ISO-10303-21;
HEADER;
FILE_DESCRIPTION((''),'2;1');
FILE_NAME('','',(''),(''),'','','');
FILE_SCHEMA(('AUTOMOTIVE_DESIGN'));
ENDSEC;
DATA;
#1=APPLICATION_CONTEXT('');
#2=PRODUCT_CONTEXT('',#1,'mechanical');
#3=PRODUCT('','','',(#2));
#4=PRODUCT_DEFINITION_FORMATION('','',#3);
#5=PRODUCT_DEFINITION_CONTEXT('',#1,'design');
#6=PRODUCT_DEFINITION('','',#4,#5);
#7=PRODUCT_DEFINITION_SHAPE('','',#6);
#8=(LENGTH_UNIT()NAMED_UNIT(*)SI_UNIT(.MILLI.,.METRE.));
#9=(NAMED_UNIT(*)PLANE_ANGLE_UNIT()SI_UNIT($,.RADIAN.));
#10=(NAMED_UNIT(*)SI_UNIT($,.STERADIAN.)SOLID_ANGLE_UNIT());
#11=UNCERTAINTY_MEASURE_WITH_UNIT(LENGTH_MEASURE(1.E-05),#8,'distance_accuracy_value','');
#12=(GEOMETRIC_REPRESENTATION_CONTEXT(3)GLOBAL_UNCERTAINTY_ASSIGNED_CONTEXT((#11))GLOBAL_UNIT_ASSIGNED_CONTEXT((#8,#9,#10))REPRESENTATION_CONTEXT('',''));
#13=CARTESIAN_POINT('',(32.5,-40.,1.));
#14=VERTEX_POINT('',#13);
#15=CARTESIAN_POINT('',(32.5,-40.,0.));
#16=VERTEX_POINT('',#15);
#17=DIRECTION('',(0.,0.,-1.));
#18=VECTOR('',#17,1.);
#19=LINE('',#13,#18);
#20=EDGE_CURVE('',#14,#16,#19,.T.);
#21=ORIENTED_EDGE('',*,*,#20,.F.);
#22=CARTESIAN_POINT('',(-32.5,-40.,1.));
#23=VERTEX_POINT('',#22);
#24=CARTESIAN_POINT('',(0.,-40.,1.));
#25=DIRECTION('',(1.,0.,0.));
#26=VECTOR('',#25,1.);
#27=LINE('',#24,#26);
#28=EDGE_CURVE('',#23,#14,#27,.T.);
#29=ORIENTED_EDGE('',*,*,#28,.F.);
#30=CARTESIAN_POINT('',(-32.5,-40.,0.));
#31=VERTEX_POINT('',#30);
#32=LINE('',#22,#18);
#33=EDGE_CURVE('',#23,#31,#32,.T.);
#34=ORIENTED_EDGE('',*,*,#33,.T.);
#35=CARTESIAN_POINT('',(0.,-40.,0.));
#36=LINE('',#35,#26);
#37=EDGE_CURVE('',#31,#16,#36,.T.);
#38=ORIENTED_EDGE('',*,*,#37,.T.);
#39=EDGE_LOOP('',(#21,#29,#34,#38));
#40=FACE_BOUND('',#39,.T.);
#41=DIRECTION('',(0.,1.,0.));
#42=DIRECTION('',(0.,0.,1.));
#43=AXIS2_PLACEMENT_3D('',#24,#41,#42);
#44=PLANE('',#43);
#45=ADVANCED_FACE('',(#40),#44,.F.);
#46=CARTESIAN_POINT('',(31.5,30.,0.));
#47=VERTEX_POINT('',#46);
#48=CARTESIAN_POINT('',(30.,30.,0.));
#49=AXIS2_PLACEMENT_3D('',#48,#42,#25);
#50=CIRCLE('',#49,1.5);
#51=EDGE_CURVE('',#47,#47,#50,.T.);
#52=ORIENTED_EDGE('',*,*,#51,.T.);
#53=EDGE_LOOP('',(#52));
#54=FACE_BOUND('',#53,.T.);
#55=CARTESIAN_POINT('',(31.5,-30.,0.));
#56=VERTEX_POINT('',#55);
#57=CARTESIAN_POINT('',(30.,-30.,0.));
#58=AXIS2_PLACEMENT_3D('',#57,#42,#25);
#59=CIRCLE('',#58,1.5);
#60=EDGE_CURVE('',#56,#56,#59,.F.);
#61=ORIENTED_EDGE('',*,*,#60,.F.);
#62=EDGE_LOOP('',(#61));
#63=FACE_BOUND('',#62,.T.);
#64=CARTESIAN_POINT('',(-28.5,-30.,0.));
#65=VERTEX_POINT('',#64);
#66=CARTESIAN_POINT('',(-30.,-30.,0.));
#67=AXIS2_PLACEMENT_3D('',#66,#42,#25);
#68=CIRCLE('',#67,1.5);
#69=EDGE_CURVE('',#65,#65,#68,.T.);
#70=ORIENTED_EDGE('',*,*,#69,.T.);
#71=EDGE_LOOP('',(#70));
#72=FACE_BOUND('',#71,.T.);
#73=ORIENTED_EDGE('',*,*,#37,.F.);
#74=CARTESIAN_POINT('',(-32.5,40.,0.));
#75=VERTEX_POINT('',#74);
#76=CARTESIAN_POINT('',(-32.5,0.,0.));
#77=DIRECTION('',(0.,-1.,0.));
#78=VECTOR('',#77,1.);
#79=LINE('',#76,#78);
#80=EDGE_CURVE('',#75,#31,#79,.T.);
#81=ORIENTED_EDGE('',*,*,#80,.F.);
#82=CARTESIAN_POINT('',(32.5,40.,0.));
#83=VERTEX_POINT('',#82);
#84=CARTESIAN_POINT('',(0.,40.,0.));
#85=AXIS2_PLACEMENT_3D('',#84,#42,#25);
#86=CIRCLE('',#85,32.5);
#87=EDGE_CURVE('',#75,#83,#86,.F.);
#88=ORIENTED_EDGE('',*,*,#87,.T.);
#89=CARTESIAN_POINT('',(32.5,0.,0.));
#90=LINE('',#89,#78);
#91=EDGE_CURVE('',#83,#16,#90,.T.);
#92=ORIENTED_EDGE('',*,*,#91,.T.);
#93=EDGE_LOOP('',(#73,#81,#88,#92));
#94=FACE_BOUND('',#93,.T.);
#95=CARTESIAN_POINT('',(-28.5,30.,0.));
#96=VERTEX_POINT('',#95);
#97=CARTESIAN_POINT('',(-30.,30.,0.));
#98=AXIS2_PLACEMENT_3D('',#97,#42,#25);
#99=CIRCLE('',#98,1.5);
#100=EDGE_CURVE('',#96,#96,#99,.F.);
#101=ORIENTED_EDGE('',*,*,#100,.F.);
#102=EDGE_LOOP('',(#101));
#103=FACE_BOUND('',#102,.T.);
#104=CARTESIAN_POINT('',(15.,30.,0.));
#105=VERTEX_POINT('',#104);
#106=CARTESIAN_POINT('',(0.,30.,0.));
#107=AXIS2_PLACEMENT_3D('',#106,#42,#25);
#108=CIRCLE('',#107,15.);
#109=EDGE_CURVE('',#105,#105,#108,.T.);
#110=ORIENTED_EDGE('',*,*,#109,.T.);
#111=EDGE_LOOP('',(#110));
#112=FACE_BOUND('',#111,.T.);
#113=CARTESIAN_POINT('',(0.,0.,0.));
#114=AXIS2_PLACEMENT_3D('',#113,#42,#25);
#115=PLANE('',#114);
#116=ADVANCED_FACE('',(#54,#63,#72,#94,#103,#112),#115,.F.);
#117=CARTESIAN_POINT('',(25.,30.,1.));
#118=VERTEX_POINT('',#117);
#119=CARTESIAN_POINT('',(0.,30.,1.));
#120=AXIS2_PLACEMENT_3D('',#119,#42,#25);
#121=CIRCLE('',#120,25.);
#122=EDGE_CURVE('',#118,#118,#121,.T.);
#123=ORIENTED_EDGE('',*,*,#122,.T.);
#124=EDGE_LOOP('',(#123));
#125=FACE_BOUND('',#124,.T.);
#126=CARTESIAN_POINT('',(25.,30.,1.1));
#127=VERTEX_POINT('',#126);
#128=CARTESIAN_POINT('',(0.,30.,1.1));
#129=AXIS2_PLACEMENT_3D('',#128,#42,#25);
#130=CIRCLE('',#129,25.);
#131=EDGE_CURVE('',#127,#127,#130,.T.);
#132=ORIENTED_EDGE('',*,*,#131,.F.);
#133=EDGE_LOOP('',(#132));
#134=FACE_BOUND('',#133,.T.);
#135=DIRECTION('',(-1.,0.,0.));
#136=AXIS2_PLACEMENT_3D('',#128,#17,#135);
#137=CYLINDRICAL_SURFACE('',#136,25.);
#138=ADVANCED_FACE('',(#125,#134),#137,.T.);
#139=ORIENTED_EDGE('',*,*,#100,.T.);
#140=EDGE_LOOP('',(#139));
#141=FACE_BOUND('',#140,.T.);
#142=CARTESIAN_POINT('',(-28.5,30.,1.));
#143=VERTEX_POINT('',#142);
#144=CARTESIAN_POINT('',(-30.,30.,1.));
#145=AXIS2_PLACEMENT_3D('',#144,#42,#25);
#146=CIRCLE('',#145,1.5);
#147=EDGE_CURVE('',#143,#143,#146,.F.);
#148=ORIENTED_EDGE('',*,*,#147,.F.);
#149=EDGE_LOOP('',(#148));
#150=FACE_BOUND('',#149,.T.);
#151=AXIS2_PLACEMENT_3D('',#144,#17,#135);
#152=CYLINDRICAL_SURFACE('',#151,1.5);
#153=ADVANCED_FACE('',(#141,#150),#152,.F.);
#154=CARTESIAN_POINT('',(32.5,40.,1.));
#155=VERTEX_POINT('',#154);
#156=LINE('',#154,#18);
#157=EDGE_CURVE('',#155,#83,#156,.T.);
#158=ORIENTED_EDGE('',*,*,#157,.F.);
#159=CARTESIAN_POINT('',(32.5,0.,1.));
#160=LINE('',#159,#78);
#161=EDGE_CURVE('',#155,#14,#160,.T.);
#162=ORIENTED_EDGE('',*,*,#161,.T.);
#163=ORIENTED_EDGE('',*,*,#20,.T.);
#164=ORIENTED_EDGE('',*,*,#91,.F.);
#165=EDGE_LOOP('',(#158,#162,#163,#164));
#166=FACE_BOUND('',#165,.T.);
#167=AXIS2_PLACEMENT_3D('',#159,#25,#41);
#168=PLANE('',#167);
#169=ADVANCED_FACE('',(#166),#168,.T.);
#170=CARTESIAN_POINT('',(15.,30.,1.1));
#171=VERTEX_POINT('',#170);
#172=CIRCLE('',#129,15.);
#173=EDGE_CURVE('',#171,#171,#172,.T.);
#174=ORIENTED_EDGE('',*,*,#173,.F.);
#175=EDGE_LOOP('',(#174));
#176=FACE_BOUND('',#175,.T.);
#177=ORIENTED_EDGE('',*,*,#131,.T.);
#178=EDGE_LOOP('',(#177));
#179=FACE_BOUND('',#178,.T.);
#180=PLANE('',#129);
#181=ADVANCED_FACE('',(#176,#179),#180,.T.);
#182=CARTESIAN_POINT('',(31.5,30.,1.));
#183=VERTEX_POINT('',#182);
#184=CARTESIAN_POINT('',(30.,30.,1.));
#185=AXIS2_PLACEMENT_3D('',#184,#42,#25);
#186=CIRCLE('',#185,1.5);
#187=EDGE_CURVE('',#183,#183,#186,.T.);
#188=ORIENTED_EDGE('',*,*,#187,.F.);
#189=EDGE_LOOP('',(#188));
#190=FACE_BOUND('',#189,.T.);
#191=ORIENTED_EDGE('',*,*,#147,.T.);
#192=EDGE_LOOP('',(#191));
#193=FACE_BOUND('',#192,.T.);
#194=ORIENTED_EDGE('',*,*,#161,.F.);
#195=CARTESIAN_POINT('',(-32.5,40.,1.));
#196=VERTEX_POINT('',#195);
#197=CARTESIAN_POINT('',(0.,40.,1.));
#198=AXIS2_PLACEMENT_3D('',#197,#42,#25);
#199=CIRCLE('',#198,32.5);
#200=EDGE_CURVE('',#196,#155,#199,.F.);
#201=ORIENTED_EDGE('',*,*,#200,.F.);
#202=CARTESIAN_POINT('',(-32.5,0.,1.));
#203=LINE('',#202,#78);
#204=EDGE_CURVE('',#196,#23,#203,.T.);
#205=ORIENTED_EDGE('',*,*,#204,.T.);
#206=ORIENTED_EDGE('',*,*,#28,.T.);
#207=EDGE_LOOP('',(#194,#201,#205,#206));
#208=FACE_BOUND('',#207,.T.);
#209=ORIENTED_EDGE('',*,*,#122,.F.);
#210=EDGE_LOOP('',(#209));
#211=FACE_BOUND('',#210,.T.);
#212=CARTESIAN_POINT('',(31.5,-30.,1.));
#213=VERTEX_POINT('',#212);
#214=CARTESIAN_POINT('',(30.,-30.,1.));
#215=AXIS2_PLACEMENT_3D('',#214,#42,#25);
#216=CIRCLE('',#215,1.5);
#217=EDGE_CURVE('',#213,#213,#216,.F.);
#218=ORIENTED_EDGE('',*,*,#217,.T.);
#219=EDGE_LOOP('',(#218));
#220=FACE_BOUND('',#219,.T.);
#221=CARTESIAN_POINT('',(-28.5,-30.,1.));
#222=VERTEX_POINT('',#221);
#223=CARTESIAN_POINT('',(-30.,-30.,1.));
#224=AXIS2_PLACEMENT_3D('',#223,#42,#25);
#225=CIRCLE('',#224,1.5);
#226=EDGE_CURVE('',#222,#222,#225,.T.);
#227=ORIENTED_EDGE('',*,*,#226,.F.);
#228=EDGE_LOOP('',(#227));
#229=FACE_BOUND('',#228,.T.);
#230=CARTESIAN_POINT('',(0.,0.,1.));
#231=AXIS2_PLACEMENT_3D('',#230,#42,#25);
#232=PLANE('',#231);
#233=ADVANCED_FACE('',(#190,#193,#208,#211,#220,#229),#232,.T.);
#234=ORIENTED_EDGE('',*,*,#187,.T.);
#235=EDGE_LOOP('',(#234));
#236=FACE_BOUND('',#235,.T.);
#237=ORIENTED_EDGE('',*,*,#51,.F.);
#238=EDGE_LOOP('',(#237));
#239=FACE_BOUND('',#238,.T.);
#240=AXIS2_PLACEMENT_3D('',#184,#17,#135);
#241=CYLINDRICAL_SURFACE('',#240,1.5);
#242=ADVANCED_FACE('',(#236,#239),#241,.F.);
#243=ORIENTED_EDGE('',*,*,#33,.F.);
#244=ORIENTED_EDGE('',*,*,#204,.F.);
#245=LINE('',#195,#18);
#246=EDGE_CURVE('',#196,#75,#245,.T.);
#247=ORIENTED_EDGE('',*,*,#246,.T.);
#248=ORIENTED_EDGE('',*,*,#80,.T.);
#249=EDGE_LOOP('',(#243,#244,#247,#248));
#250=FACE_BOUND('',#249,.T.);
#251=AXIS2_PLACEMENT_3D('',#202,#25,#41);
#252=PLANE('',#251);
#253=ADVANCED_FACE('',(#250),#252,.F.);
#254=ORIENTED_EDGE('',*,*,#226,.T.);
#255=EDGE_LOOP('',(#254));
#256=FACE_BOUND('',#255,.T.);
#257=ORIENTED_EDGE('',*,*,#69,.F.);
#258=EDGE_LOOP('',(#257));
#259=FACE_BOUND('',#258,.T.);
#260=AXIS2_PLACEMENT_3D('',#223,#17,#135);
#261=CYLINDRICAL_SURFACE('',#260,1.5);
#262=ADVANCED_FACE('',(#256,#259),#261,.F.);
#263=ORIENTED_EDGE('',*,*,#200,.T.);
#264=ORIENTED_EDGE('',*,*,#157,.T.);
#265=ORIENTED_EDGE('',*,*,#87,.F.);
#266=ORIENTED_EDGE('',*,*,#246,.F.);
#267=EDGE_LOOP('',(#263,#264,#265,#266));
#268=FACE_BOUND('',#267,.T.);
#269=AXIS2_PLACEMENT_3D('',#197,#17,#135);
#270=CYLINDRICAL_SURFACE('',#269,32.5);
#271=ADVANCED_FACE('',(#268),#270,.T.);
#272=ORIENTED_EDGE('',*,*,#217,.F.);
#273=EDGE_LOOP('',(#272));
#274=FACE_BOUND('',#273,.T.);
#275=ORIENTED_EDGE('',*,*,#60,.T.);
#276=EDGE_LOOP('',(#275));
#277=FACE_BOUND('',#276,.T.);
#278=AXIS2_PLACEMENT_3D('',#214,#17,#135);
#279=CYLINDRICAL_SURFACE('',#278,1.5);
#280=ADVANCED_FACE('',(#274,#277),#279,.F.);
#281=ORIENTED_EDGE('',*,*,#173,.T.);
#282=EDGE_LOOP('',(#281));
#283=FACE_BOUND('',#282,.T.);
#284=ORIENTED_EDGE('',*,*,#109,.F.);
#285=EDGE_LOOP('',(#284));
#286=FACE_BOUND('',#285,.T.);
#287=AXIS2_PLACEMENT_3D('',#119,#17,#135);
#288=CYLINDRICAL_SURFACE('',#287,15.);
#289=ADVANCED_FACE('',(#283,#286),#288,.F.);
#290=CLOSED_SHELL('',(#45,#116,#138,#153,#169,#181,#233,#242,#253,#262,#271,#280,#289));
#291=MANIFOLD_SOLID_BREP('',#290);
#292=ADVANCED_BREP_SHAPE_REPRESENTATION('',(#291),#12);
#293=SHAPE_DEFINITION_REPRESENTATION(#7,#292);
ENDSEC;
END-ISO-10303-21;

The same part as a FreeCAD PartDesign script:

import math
import FreeCAD as App
import Part
import Sketcher

doc = App.newDocument("Part")
body = doc.addObject("PartDesign::Body", "Body")

# Sketch on XY plane
sketch1 = body.newObject("Sketcher::SketchObject", "Sketch")
sketch1.AttachmentSupport = (doc.getObject("XY_Plane"), [""])
sketch1.MapMode = "FlatFace"
sketch1.addGeometry([
    Part.LineSegment(App.Vector(-32.5, 40, 0), App.Vector(-32.5, -40, 0)),  # 0
    Part.LineSegment(App.Vector(-32.5, -40, 0), App.Vector(32.5, -40, 0)),  # 1
    Part.LineSegment(App.Vector(32.5, -40, 0), App.Vector(32.5, 40, 0)),  # 2
    Part.ArcOfCircle(Part.Circle(App.Vector(0, 40, 0), App.Vector(0, 0, 1), 32.5), math.radians(0), math.radians(180)),  # 3
    Part.Circle(App.Vector(-30, -30, 0), App.Vector(0, 0, 1), 1.5),  # 4
    Part.Circle(App.Vector(30, -30, 0), App.Vector(0, 0, 1), 1.5),  # 5
    Part.Circle(App.Vector(-30, 30, 0), App.Vector(0, 0, 1), 1.5),  # 6
    Part.Circle(App.Vector(0, 30, 0), App.Vector(0, 0, 1), 15),  # 7
    Part.Circle(App.Vector(30, 30, 0), App.Vector(0, 0, 1), 1.5),  # 8
], False)
sketch1.addConstraint([
    Sketcher.Constraint("Coincident", 0, 2, 1, 1),
    Sketcher.Constraint("Coincident", 1, 2, 2, 1),
    Sketcher.Constraint("Tangent", 2, 2, 3, 1),
    Sketcher.Constraint("Tangent", 3, 2, 0, 1),
    Sketcher.Constraint("Vertical", 0),
    Sketcher.Constraint("Horizontal", 1),
    Sketcher.Constraint("Vertical", 2),
    Sketcher.Constraint("Equal", 4, 5),
    Sketcher.Constraint("Equal", 5, 6),
    Sketcher.Constraint("Equal", 6, 8),
    Sketcher.Constraint("Symmetric", 5, 3, 6, 3, -1, 1),
    Sketcher.Constraint("Symmetric", 4, 3, 8, 3, -1, 1),
    Sketcher.Constraint("Symmetric", 0, 2, 2, 2, -1, 1),
    Sketcher.Constraint("Symmetric", 4, 3, 5, 3, -2),
    Sketcher.Constraint("PointOnObject", 7, 3, -2),
    Sketcher.Constraint("Horizontal", 6, 3, 7, 3),
    Sketcher.Constraint("Diameter", 4, 3.0),
    Sketcher.Constraint("Diameter", 7, 30.0),
    Sketcher.Constraint("Radius", 3, 32.5),
    Sketcher.Constraint("DistanceY", 0, 2, 0, 1, 80.0),
    Sketcher.Constraint("DistanceX", 4, 3, -1, 1, 30.0),
    Sketcher.Constraint("DistanceY", 4, 3, -1, 1, 30.0),
])
pad1 = body.newObject("PartDesign::Pad", "Pad")
pad1.Profile = sketch1
pad1.Length = 1

# Sketch on XY plane
sketch2 = body.newObject("Sketcher::SketchObject", "Sketch001")
sketch2.AttachmentSupport = (doc.getObject("XY_Plane"), [""])
sketch2.MapMode = "FlatFace"
sketch2.AttachmentOffset = App.Placement(App.Vector(0, 0, 1), App.Rotation())
sketch2.addGeometry(Part.Circle(App.Vector(0, 30, 0), App.Vector(0, 0, 1), 25), False)
sketch2.addConstraint([
    Sketcher.Constraint("PointOnObject", 0, 3, -2),
    Sketcher.Constraint("Diameter", 0, 50.0),
    Sketcher.Constraint("DistanceY", -1, 1, 0, 3, 30.0),
])
pad2 = body.newObject("PartDesign::Pad", "Pad001")
pad2.Profile = sketch2
pad2.Length = 0.1

# Sketch on XY plane
sketch3 = body.newObject("Sketcher::SketchObject", "Sketch002")
sketch3.AttachmentSupport = (doc.getObject("XY_Plane"), [""])
sketch3.MapMode = "FlatFace"
sketch3.AttachmentOffset = App.Placement(App.Vector(0, 0, 1), App.Rotation())
sketch3.addGeometry(Part.Circle(App.Vector(0, 30, 0), App.Vector(0, 0, 1), 15), False)
sketch3.addConstraint([
    Sketcher.Constraint("PointOnObject", 0, 3, -2),
    Sketcher.Constraint("Diameter", 0, 30.0),
    Sketcher.Constraint("DistanceY", -1, 1, 0, 3, 30.0),
])
pocket1 = body.newObject("PartDesign::Pocket", "Pocket")
pocket1.Profile = sketch3
pocket1.Length = 1
pocket1.Reversed = True

doc.recompute()
